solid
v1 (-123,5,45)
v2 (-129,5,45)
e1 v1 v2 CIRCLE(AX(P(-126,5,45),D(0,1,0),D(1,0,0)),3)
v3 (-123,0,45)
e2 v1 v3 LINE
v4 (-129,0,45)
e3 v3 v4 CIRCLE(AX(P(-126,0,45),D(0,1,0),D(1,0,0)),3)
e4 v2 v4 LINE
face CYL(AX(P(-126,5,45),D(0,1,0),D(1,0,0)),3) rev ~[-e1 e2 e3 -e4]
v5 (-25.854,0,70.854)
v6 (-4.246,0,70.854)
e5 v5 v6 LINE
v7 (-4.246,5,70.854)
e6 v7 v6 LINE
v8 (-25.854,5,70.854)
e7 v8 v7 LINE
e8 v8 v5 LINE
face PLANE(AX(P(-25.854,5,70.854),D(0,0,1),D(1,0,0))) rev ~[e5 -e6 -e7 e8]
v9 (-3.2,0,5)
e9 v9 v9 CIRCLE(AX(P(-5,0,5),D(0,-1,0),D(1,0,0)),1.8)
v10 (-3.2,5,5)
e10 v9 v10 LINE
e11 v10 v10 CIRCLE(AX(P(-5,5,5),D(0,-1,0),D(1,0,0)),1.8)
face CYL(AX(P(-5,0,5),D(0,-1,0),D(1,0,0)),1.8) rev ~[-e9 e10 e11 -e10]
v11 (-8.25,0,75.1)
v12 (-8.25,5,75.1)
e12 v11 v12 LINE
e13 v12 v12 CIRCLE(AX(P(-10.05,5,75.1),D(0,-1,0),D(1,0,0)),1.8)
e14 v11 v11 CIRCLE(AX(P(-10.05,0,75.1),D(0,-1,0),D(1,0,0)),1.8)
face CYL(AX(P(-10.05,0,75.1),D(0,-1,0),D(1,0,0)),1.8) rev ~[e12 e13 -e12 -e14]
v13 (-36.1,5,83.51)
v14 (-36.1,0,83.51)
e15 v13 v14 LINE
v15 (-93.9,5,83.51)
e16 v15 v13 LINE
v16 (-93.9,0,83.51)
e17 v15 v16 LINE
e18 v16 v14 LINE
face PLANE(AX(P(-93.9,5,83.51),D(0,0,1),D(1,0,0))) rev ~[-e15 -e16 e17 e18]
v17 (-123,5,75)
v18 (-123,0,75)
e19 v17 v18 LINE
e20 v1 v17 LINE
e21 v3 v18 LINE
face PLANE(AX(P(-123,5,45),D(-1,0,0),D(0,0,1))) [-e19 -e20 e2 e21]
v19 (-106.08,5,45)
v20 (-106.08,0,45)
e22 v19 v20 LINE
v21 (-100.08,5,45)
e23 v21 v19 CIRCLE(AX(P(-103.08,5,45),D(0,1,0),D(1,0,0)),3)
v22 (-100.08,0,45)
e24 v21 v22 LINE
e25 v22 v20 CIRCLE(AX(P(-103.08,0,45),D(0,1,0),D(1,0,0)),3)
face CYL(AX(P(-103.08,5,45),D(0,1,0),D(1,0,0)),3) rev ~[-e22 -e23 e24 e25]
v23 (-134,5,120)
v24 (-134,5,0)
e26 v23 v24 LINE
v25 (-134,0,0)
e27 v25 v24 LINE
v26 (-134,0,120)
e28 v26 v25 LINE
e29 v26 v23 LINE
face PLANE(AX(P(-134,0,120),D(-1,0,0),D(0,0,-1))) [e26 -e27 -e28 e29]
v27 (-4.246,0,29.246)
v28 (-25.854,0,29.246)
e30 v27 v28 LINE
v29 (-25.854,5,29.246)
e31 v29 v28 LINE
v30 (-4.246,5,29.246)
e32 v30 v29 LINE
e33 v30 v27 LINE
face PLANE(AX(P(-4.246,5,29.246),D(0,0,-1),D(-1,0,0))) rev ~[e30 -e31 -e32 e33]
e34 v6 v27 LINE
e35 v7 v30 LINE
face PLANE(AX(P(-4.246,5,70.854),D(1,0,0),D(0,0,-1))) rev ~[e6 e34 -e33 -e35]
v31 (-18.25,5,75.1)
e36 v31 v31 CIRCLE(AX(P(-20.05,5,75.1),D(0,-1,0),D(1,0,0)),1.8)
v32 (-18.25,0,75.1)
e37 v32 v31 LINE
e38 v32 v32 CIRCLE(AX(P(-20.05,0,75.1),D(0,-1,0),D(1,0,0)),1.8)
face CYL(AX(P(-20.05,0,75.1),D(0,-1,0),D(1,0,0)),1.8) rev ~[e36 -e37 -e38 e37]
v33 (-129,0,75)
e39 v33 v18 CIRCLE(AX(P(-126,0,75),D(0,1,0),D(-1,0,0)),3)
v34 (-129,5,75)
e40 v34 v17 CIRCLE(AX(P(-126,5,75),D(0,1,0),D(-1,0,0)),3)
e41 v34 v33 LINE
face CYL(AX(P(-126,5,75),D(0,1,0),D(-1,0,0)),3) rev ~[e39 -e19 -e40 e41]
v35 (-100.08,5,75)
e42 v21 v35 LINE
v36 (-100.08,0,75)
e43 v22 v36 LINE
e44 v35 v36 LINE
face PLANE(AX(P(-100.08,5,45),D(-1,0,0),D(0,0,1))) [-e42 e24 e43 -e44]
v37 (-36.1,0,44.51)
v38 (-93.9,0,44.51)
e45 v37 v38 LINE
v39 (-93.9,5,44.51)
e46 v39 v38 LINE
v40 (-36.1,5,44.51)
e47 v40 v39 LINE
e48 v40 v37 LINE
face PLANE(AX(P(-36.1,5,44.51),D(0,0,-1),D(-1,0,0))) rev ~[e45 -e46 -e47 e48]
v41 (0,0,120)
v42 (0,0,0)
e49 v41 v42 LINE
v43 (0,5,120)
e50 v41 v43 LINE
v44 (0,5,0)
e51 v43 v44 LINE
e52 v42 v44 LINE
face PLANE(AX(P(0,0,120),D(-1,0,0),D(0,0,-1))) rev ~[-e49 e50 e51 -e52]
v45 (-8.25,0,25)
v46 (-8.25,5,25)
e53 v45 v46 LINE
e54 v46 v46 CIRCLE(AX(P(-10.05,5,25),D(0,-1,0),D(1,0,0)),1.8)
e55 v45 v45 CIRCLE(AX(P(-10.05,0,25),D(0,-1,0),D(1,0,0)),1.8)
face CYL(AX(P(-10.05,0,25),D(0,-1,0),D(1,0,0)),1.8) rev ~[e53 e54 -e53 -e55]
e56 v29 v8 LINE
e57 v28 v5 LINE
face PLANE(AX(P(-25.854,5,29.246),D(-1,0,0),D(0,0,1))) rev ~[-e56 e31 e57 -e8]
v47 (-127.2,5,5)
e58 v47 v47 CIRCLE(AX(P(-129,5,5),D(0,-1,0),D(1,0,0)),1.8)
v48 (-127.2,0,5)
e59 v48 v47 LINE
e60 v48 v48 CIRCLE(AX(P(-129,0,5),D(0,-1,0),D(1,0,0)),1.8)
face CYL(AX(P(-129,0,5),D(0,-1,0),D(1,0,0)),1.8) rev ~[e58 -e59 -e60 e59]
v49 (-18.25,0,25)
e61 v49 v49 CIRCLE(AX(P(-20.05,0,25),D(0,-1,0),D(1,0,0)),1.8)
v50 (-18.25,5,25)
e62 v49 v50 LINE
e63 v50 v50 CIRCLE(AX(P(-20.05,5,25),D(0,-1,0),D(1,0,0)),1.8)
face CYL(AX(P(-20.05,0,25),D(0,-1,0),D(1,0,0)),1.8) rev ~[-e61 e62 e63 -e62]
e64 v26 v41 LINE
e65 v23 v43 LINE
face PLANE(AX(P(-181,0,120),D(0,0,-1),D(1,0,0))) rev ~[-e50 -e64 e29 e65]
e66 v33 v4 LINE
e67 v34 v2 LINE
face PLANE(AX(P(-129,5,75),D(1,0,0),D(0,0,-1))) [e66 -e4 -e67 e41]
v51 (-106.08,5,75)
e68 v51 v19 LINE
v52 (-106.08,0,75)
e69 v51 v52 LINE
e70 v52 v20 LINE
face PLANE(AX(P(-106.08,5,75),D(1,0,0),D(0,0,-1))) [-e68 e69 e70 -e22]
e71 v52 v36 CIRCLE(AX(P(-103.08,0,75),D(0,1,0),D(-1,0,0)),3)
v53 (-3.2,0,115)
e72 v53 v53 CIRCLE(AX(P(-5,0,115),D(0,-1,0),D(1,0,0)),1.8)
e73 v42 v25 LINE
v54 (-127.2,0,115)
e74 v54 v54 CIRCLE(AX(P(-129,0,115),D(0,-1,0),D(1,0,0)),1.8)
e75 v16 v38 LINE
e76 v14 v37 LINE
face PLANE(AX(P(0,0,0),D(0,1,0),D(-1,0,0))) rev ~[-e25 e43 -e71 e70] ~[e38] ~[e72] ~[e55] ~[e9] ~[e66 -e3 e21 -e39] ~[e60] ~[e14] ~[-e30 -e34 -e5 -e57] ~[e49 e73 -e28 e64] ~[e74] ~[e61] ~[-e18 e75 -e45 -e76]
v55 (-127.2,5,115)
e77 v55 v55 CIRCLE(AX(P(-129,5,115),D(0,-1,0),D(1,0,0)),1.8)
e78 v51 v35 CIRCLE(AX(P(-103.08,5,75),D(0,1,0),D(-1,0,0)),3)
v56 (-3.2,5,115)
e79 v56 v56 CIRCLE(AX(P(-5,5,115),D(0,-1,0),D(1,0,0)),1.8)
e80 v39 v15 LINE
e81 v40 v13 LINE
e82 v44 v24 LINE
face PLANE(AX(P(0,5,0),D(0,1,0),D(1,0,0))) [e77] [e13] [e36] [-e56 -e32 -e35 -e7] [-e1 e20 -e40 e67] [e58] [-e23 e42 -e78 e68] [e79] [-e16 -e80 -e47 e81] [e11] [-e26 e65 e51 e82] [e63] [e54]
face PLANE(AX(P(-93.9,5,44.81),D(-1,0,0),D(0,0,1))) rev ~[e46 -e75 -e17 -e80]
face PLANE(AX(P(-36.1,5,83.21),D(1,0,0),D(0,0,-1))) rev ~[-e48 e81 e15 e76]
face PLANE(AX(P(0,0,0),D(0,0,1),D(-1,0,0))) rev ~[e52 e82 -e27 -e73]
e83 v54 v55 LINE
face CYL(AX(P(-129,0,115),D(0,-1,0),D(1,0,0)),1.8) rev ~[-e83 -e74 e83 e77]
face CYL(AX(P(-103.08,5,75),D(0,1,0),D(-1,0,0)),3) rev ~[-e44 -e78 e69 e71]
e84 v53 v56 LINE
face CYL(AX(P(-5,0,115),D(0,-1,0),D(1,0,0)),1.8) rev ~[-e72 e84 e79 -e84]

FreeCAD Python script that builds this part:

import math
import FreeCAD as App
import Part
import Sketcher

V = App.Vector
Q = App.Units.Quantity


def add_polygon(sketch, points):
    """Adds a closed chain of lines whose ends are joined by coincident constraints."""
    first, n = sketch.GeometryCount, len(points)
    for a, b in zip(points, points[1:] + points[:1]):
        sketch.addGeometry(Part.LineSegment(App.Vector(*a, 0), App.Vector(*b, 0)), False)
    for i in range(n):
        sketch.addConstraint(Sketcher.Constraint("Coincident", first + i, 2, first + (i + 1) % n, 1))

doc = App.newDocument("Part")
body = doc.addObject("PartDesign::Body", "Body")

# Sketch on XZ plane
sketch1 = body.newObject("Sketcher::SketchObject", "Sketch")
sketch1.AttachmentSupport = (doc.getObject("XZ_Plane"), [""])
sketch1.MapMode = "FlatFace"
add_polygon(sketch1, [(0, 120), (0, 0), (-181, 0), (-181, 120)])  # lines 0-3
sketch1.addConstraint(Sketcher.Constraint("Vertical", 0))
sketch1.addConstraint(Sketcher.Constraint("Horizontal", 1))
sketch1.addConstraint(Sketcher.Constraint("Vertical", 2))
sketch1.addConstraint(Sketcher.Constraint("Horizontal", 3))
sketch1.addConstraint(Sketcher.Constraint("Coincident", 0, 2, -1, 1))
sketch1.addConstraint(Sketcher.Constraint("DistanceX", 1, 2, 1, 1, Q("181 mm")))
sketch1.addConstraint(Sketcher.Constraint("DistanceY", 0, 2, 0, 1, Q("120 mm")))
pad1 = body.newObject("PartDesign::Pad", "Pad")
pad1.Profile = sketch1
pad1.Length = 5
pad1.Reversed = True

# Sketch on XZ plane
sketch2 = body.newObject("Sketcher::SketchObject", "Sketch001")
sketch2.AttachmentSupport = (doc.getObject("XZ_Plane"), [""])
sketch2.MapMode = "FlatFace"
add_polygon(sketch2, [(-5, 70.1), (-25.1, 70.1), (-25.1, 30), (-5, 30)])  # lines 0-3
sketch2.addGeometry(Part.Circle(V(-20.05, 25, 0), V(0, 0, 1), 1.8), False)  # 4
sketch2.addGeometry(Part.Circle(V(-10.05, 25, 0), V(0, 0, 1), 1.8), False)  # 5
sketch2.addGeometry(Part.Circle(V(-20.05, 75.1, 0), V(0, 0, 1), 1.8), False)  # 6
sketch2.addGeometry(Part.Circle(V(-10.05, 75.1, 0), V(0, 0, 1), 1.8), False)  # 7
sketch2.addConstraint(Sketcher.Constraint("Horizontal", 0))
sketch2.addConstraint(Sketcher.Constraint("Vertical", 1))
sketch2.addConstraint(Sketcher.Constraint("Horizontal", 2))
sketch2.addConstraint(Sketcher.Constraint("Vertical", 3))
sketch2.addConstraint(Sketcher.Constraint("Equal", 4, 5))
sketch2.addConstraint(Sketcher.Constraint("Equal", 5, 6))
sketch2.addConstraint(Sketcher.Constraint("Equal", 6, 7))
sketch2.addConstraint(Sketcher.Constraint("Horizontal", 4, 3, 5, 3))
sketch2.addConstraint(Sketcher.Constraint("Horizontal", 6, 3, 7, 3))
sketch2.addConstraint(Sketcher.Constraint("Vertical", 4, 3, 6, 3))
sketch2.addConstraint(Sketcher.Constraint("Vertical", 5, 3, 7, 3))
sketch2.addConstraint(Sketcher.Constraint("Diameter", 4, Q("3.6 mm")))
sketch2.addConstraint(Sketcher.Constraint("DistanceX", 0, 2, 0, 1, Q("20.1 mm")))
sketch2.addConstraint(Sketcher.Constraint("DistanceY", 1, 2, 1, 1, Q("40.1 mm")))
sketch2.addConstraint(Sketcher.Constraint("DistanceY", -1, 1, 1, 2, Q("30 mm")))
sketch2.addConstraint(Sketcher.Constraint("DistanceX", 2, 2, -1, 1, Q("5 mm")))
sketch2.addConstraint(Sketcher.Constraint("DistanceY", 0, 2, 6, 3, Q("5 mm")))
sketch2.addConstraint(Sketcher.Constraint("DistanceY", 4, 3, 1, 2, Q("5 mm")))
sketch2.addConstraint(Sketcher.Constraint("DistanceX", 5, 3, -1, 1, Q("10.05 mm")))
sketch2.addConstraint(Sketcher.Constraint("DistanceX", 0, 2, 6, 3, Q("5.05 mm")))
pocket1 = body.newObject("PartDesign::Pocket", "Pocket")
pocket1.Profile = sketch2
pocket1.Length = 5

# Sketch on XZ plane
sketch3 = body.newObject("Sketcher::SketchObject", "Sketch002")
sketch3.AttachmentSupport = (doc.getObject("XZ_Plane"), [""])
sketch3.MapMode = "FlatFace"
add_polygon(sketch3, [(-181, 120), (-181, 0), (-134, 0), (-134, 120)])  # lines 0-3
sketch3.addConstraint(Sketcher.Constraint("Vertical", 0))
sketch3.addConstraint(Sketcher.Constraint("Horizontal", 1))
sketch3.addConstraint(Sketcher.Constraint("Vertical", 2))
sketch3.addConstraint(Sketcher.Constraint("Horizontal", 3))
sketch3.addConstraint(Sketcher.Constraint("PointOnObject", 0, 2, -1))
sketch3.addConstraint(Sketcher.Constraint("DistanceX", 1, 1, 1, 2, Q("47 mm")))
sketch3.addConstraint(Sketcher.Constraint("DistanceY", 0, 2, 0, 1, Q("120 mm")))
sketch3.addConstraint(Sketcher.Constraint("DistanceX", 0, 2, -1, 1, Q("181 mm")))
pocket2 = body.newObject("PartDesign::Pocket", "Pocket001")
pocket2.Profile = sketch3
pocket2.Length = 5

# Sketch on XZ plane
sketch4 = body.newObject("Sketcher::SketchObject", "Sketch003")
sketch4.AttachmentSupport = (doc.getObject("XZ_Plane"), [""])
sketch4.MapMode = "FlatFace"
sketch4.addGeometry(Part.Circle(V(-5, 5, 0), V(0, 0, 1), 1.8), False)
sketch4.addGeometry(Part.Circle(V(-5, 115, 0), V(0, 0, 1), 1.8), False)
sketch4.addGeometry(Part.Circle(V(-129, 115, 0), V(0, 0, 1), 1.8), False)
sketch4.addGeometry(Part.Circle(V(-129, 5, 0), V(0, 0, 1), 1.8), False)
sketch4.addConstraint(Sketcher.Constraint("Equal", 0, 1))
sketch4.addConstraint(Sketcher.Constraint("Equal", 1, 2))
sketch4.addConstraint(Sketcher.Constraint("Equal", 2, 3))
sketch4.addConstraint(Sketcher.Constraint("Horizontal", 1, 3, 2, 3))
sketch4.addConstraint(Sketcher.Constraint("Horizontal", 0, 3, 3, 3))
sketch4.addConstraint(Sketcher.Constraint("Vertical", 0, 3, 1, 3))
sketch4.addConstraint(Sketcher.Constraint("Vertical", 2, 3, 3, 3))
sketch4.addConstraint(Sketcher.Constraint("Diameter", 0, Q("3.6 mm")))
sketch4.addConstraint(Sketcher.Constraint("DistanceX", 0, 3, -1, 1, Q("5 mm")))
sketch4.addConstraint(Sketcher.Constraint("DistanceY", -1, 1, 0, 3, Q("5 mm")))
sketch4.addConstraint(Sketcher.Constraint("DistanceY", -1, 1, 1, 3, Q("115 mm")))
sketch4.addConstraint(Sketcher.Constraint("DistanceX", 2, 3, -1, 1, Q("129 mm")))
pocket3 = body.newObject("PartDesign::Pocket", "Pocket002")
pocket3.Profile = sketch4
pocket3.Length = 5

# Sketch on XZ plane
sketch5 = body.newObject("Sketcher::SketchObject", "Sketch004")
sketch5.AttachmentSupport = (doc.getObject("XZ_Plane"), [""])
sketch5.MapMode = "FlatFace"
add_polygon(sketch5, [(-4.5, 29.5), (-4.5, 70.6), (-25.6, 70.6), (-25.6, 29.5)])  # lines 0-3
sketch5.addConstraint(Sketcher.Constraint("Vertical", 0))
sketch5.addConstraint(Sketcher.Constraint("Horizontal", 1))
sketch5.addConstraint(Sketcher.Constraint("Vertical", 2))
sketch5.addConstraint(Sketcher.Constraint("Horizontal", 3))
sketch5.addConstraint(Sketcher.Constraint("DistanceX", 1, 2, 1, 1, Q("21.1 mm")))
sketch5.addConstraint(Sketcher.Constraint("DistanceY", 0, 1, 0, 2, Q("41.1 mm")))
sketch5.addConstraint(Sketcher.Constraint("DistanceX", 0, 2, -1, 1, Q("4.5 mm")))
sketch5.addConstraint(Sketcher.Constraint("DistanceY", -1, 1, 0, 2, Q("70.6 mm")))
pocket4 = body.newObject("PartDesign::Pocket", "Pocket003")
pocket4.Profile = sketch5
pocket4.Length = 25.4

# Sketch on XZ plane
sketch6 = body.newObject("Sketcher::SketchObject", "Sketch005")
sketch6.AttachmentSupport = (doc.getObject("XZ_Plane"), [""])
sketch6.MapMode = "FlatFace"
sketch6.AttachmentOffset = App.Placement(V(0, 0, -5), App.Rotation())
sketch6.addGeometry(Part.ArcOfCircle(Part.Circle(V(-81, 79.3, 0), V(0, 0, 1), 9.08), math.radians(90), math.radians(180)), False)
sketch6.addGeometry(Part.LineSegment(V(-81, 88.38, 0), V(-49, 88.38, 0)), False)
sketch6.addGeometry(Part.ArcOfCircle(Part.Circle(V(-49, 79.3, 0), V(0, 0, 1), 9.08), math.radians(0), math.radians(90)), False)
sketch6.addGeometry(Part.LineSegment(V(-39.92, 79.3, 0), V(-39.92, 47.3, 0)), False)
sketch6.addGeometry(Part.ArcOfCircle(Part.Circle(V(-49, 47.3, 0), V(0, 0, 1), 9.08), math.radians(-90), math.radians(0)), False)
sketch6.addGeometry(Part.LineSegment(V(-49, 38.22, 0), V(-81, 38.22, 0)), False)
sketch6.addGeometry(Part.ArcOfCircle(Part.Circle(V(-81, 47.3, 0), V(0, 0, 1), 9.08), math.radians(180), math.radians(270)), False)
sketch6.addGeometry(Part.LineSegment(V(-90.08, 47.3, 0), V(-90.08, 79.3, 0)), False)
sketch6.addConstraint(Sketcher.Constraint("Tangent", 0, 1, 1, 1))
sketch6.addConstraint(Sketcher.Constraint("Tangent", 1, 2, 2, 2))
sketch6.addConstraint(Sketcher.Constraint("Tangent", 2, 1, 3, 1))
sketch6.addConstraint(Sketcher.Constraint("Tangent", 3, 2, 4, 2))
sketch6.addConstraint(Sketcher.Constraint("Tangent", 4, 1, 5, 1))
sketch6.addConstraint(Sketcher.Constraint("Tangent", 5, 2, 6, 2))
sketch6.addConstraint(Sketcher.Constraint("Tangent", 6, 1, 7, 1))
sketch6.addConstraint(Sketcher.Constraint("Tangent", 7, 2, 0, 2))
sketch6.addConstraint(Sketcher.Constraint("Horizontal", 1))
sketch6.addConstraint(Sketcher.Constraint("Vertical", 3))
sketch6.addConstraint(Sketcher.Constraint("Horizontal", 5))
sketch6.addConstraint(Sketcher.Constraint("Vertical", 7))
sketch6.addConstraint(Sketcher.Constraint("Equal", 0, 2))
sketch6.addConstraint(Sketcher.Constraint("Equal", 2, 4))
sketch6.addConstraint(Sketcher.Constraint("Equal", 4, 6))
sketch6.addConstraint(Sketcher.Constraint("Equal", 5, 3))
sketch6.addConstraint(Sketcher.Constraint("DistanceX", 1, 1, 1, 2, Q("32 mm")))
sketch6.addConstraint(Sketcher.Constraint("Radius", 0, Q("9.08 mm")))
sketch6.addConstraint(Sketcher.Constraint("DistanceX", 0, 3, -1, 1, Q("81 mm")))
sketch6.addConstraint(Sketcher.Constraint("DistanceY", -1, 1, 0, 3, Q("79.3 mm")))
pocket5 = body.newObject("PartDesign::Pocket", "Pocket004")
pocket5.Profile = sketch6
pocket5.Length = 25.4
pocket5.Reversed = True

# Sketch on XZ plane
sketch7 = body.newObject("Sketcher::SketchObject", "Sketch006")
sketch7.AttachmentSupport = (doc.getObject("XZ_Plane"), [""])
sketch7.MapMode = "FlatFace"
sketch7.AttachmentOffset = App.Placement(V(0, 0, -5), App.Rotation())
sketch7.addGeometry(Part.LineSegment(V(-106.08, 45, 0), V(-106.08, 75, 0)), False)
sketch7.addGeometry(Part.ArcOfCircle(Part.Circle(V(-103.08, 75, 0), V(0, 0, 1), 3), math.radians(0), math.radians(180)), False)
sketch7.addGeometry(Part.LineSegment(V(-100.08, 75, 0), V(-100.08, 45, 0)), False)
sketch7.addGeometry(Part.ArcOfCircle(Part.Circle(V(-103.08, 45, 0), V(0, 0, 1), 3), math.radians(180), math.radians(360)), False)
sketch7.addGeometry(Part.LineSegment(V(-129, 45, 0), V(-129, 75, 0)), False)
sketch7.addGeometry(Part.ArcOfCircle(Part.Circle(V(-126, 75, 0), V(0, 0, 1), 3), math.radians(0), math.radians(180)), False)
sketch7.addGeometry(Part.LineSegment(V(-123, 75, 0), V(-123, 45, 0)), False)
sketch7.addGeometry(Part.ArcOfCircle(Part.Circle(V(-126, 45, 0), V(0, 0, 1), 3), math.radians(180), math.radians(360)), False)
sketch7.addConstraint(Sketcher.Constraint("Tangent", 0, 2, 1, 2))
sketch7.addConstraint(Sketcher.Constraint("Tangent", 1, 1, 2, 1))
sketch7.addConstraint(Sketcher.Constraint("Tangent", 2, 2, 3, 2))
sketch7.addConstraint(Sketcher.Constraint("Tangent", 3, 1, 0, 1))
sketch7.addConstraint(Sketcher.Constraint("Tangent", 4, 2, 5, 2))
sketch7.addConstraint(Sketcher.Constraint("Tangent", 5, 1, 6, 1))
sketch7.addConstraint(Sketcher.Constraint("Tangent", 6, 2, 7, 2))
sketch7.addConstraint(Sketcher.Constraint("Tangent", 7, 1, 4, 1))
sketch7.addConstraint(Sketcher.Constraint("Vertical", 0))
sketch7.addConstraint(Sketcher.Constraint("Vertical", 2))
sketch7.addConstraint(Sketcher.Constraint("Vertical", 4))
sketch7.addConstraint(Sketcher.Constraint("Vertical", 6))
sketch7.addConstraint(Sketcher.Constraint("Equal", 3, 5))
sketch7.addConstraint(Sketcher.Constraint("Horizontal", 1, 3, 5, 3))
sketch7.addConstraint(Sketcher.Constraint("Horizontal", 3, 3, 7, 3))
sketch7.addConstraint(Sketcher.Constraint("Radius", 1, Q("3 mm")))
sketch7.addConstraint(Sketcher.Constraint("DistanceY", 0, 1, 0, 2, Q("30 mm")))
sketch7.addConstraint(Sketcher.Constraint("DistanceY", -1, 1, 1, 3, Q("75 mm")))
sketch7.addConstraint(Sketcher.Constraint("DistanceX", 5, 3, -1, 1, Q("126 mm")))
sketch7.addConstraint(Sketcher.Constraint("DistanceX", 1, 3, -1, 1, Q("103.08 mm")))
pocket6 = body.newObject("PartDesign::Pocket", "Pocket005")
pocket6.Profile = sketch7
pocket6.Length = 25.4
pocket6.Reversed = True

# Sketch on XZ plane
sketch8 = body.newObject("Sketcher::SketchObject", "Sketch007")
sketch8.AttachmentSupport = (doc.getObject("XZ_Plane"), [""])
sketch8.MapMode = "FlatFace"
sketch8.AttachmentOffset = App.Placement(V(0, 0, -5), App.Rotation())
sketch8.addGeometry(Part.LineSegment(V(-39.92, 79.3, 0), V(-39.92, 47.3, 0)), False)
sketch8.addGeometry(Part.ArcOfCircle(Part.Circle(V(-49, 47.3, 0), V(0, 0, 1), 9.08), math.radians(-90), math.radians(0)), False)
sketch8.addGeometry(Part.LineSegment(V(-49, 38.22, 0), V(-81, 38.22, 0)), False)
sketch8.addGeometry(Part.ArcOfCircle(Part.Circle(V(-81, 47.3, 0), V(0, 0, 1), 9.08), math.radians(180), math.radians(270)), False)
sketch8.addGeometry(Part.LineSegment(V(-90.08, 47.3, 0), V(-90.08, 79.3, 0)), False)
sketch8.addGeometry(Part.ArcOfCircle(Part.Circle(V(-81, 79.3, 0), V(0, 0, 1), 9.08), math.radians(90), math.radians(180)), False)
sketch8.addGeometry(Part.LineSegment(V(-81, 88.38, 0), V(-49, 88.38, 0)), False)
sketch8.addGeometry(Part.ArcOfCircle(Part.Circle(V(-49, 79.3, 0), V(0, 0, 1), 9.08), math.radians(0), math.radians(90)), False)
sketch8.addConstraint(Sketcher.Constraint("Tangent", 0, 2, 1, 2))
sketch8.addConstraint(Sketcher.Constraint("Tangent", 1, 1, 2, 1))
sketch8.addConstraint(Sketcher.Constraint("Tangent", 2, 2, 3, 2))
sketch8.addConstraint(Sketcher.Constraint("Tangent", 3, 1, 4, 1))
sketch8.addConstraint(Sketcher.Constraint("Tangent", 4, 2, 5, 2))
sketch8.addConstraint(Sketcher.Constraint("Tangent", 5, 1, 6, 1))
sketch8.addConstraint(Sketcher.Constraint("Tangent", 6, 2, 7, 2))
sketch8.addConstraint(Sketcher.Constraint("Tangent", 7, 1, 0, 1))
sketch8.addConstraint(Sketcher.Constraint("Vertical", 0))
sketch8.addConstraint(Sketcher.Constraint("Horizontal", 2))
sketch8.addConstraint(Sketcher.Constraint("Vertical", 4))
sketch8.addConstraint(Sketcher.Constraint("Horizontal", 6))
sketch8.addConstraint(Sketcher.Constraint("Equal", 1, 3))
sketch8.addConstraint(Sketcher.Constraint("Equal", 3, 5))
sketch8.addConstraint(Sketcher.Constraint("Equal", 5, 7))
sketch8.addConstraint(Sketcher.Constraint("Equal", 6, 0))
sketch8.addConstraint(Sketcher.Constraint("DistanceX", 2, 2, 2, 1, Q("32 mm")))
sketch8.addConstraint(Sketcher.Constraint("Radius", 1, Q("9.08 mm")))
sketch8.addConstraint(Sketcher.Constraint("DistanceX", 1, 3, -1, 1, Q("49 mm")))
sketch8.addConstraint(Sketcher.Constraint("DistanceY", -1, 1, 1, 3, Q("47.3 mm")))
pad2 = body.newObject("PartDesign::Pad", "Pad001")
pad2.Profile = sketch8
pad2.Length = 5

# Sketch on XZ plane
sketch9 = body.newObject("Sketcher::SketchObject", "Sketch008")
sketch9.AttachmentSupport = (doc.getObject("XZ_Plane"), [""])
sketch9.MapMode = "FlatFace"
sketch9.AttachmentOffset = App.Placement(V(0, 0, -5), App.Rotation())
add_polygon(sketch9, [(-4.246, 70.854), (-4.246, 29.246), (-25.854, 29.246), (-25.854, 70.854)])  # lines 0-3
sketch9.addConstraint(Sketcher.Constraint("Vertical", 0))
sketch9.addConstraint(Sketcher.Constraint("Horizontal", 1))
sketch9.addConstraint(Sketcher.Constraint("Vertical", 2))
sketch9.addConstraint(Sketcher.Constraint("Horizontal", 3))
sketch9.addConstraint(Sketcher.Constraint("DistanceX", 1, 2, 1, 1, Q("21.608 mm")))
sketch9.addConstraint(Sketcher.Constraint("DistanceY", 0, 2, 0, 1, Q("41.608 mm")))
sketch9.addConstraint(Sketcher.Constraint("DistanceX", 0, 2, -1, 1, Q("4.246 mm")))
sketch9.addConstraint(Sketcher.Constraint("DistanceY", -1, 1, 0, 2, Q("29.246 mm")))
pocket7 = body.newObject("PartDesign::Pocket", "Pocket006")
pocket7.Profile = sketch9
pocket7.Length = 5
pocket7.Reversed = True

# Sketch on XZ plane
sketch10 = body.newObject("Sketcher::SketchObject", "Sketch009")
sketch10.AttachmentSupport = (doc.getObject("XZ_Plane"), [""])
sketch10.MapMode = "FlatFace"
sketch10.AttachmentOffset = App.Placement(V(0, 0, -5), App.Rotation())
add_polygon(sketch10, [(-36.1, 44.51), (-93.9, 44.51), (-93.9, 83.51), (-36.1, 83.51)])  # lines 0-3
sketch10.addConstraint(Sketcher.Constraint("Horizontal", 0))
sketch10.addConstraint(Sketcher.Constraint("Vertical", 1))
sketch10.addConstraint(Sketcher.Constraint("Horizontal", 2))
sketch10.addConstraint(Sketcher.Constraint("Vertical", 3))
sketch10.addConstraint(Sketcher.Constraint("DistanceY", 1, 1, 1, 2, Q("39 mm")))
sketch10.addConstraint(Sketcher.Constraint("DistanceX", 0, 2, 0, 1, Q("57.8 mm")))
sketch10.addConstraint(Sketcher.Constraint("DistanceX", 0, 2, -1, 1, Q("93.9 mm")))
sketch10.addConstraint(Sketcher.Constraint("DistanceY", -1, 1, 0, 2, Q("44.51 mm")))
pocket8 = body.newObject("PartDesign::Pocket", "Pocket007")
pocket8.Profile = sketch10
pocket8.Length = 5
pocket8.Reversed = True

doc.recompute()
